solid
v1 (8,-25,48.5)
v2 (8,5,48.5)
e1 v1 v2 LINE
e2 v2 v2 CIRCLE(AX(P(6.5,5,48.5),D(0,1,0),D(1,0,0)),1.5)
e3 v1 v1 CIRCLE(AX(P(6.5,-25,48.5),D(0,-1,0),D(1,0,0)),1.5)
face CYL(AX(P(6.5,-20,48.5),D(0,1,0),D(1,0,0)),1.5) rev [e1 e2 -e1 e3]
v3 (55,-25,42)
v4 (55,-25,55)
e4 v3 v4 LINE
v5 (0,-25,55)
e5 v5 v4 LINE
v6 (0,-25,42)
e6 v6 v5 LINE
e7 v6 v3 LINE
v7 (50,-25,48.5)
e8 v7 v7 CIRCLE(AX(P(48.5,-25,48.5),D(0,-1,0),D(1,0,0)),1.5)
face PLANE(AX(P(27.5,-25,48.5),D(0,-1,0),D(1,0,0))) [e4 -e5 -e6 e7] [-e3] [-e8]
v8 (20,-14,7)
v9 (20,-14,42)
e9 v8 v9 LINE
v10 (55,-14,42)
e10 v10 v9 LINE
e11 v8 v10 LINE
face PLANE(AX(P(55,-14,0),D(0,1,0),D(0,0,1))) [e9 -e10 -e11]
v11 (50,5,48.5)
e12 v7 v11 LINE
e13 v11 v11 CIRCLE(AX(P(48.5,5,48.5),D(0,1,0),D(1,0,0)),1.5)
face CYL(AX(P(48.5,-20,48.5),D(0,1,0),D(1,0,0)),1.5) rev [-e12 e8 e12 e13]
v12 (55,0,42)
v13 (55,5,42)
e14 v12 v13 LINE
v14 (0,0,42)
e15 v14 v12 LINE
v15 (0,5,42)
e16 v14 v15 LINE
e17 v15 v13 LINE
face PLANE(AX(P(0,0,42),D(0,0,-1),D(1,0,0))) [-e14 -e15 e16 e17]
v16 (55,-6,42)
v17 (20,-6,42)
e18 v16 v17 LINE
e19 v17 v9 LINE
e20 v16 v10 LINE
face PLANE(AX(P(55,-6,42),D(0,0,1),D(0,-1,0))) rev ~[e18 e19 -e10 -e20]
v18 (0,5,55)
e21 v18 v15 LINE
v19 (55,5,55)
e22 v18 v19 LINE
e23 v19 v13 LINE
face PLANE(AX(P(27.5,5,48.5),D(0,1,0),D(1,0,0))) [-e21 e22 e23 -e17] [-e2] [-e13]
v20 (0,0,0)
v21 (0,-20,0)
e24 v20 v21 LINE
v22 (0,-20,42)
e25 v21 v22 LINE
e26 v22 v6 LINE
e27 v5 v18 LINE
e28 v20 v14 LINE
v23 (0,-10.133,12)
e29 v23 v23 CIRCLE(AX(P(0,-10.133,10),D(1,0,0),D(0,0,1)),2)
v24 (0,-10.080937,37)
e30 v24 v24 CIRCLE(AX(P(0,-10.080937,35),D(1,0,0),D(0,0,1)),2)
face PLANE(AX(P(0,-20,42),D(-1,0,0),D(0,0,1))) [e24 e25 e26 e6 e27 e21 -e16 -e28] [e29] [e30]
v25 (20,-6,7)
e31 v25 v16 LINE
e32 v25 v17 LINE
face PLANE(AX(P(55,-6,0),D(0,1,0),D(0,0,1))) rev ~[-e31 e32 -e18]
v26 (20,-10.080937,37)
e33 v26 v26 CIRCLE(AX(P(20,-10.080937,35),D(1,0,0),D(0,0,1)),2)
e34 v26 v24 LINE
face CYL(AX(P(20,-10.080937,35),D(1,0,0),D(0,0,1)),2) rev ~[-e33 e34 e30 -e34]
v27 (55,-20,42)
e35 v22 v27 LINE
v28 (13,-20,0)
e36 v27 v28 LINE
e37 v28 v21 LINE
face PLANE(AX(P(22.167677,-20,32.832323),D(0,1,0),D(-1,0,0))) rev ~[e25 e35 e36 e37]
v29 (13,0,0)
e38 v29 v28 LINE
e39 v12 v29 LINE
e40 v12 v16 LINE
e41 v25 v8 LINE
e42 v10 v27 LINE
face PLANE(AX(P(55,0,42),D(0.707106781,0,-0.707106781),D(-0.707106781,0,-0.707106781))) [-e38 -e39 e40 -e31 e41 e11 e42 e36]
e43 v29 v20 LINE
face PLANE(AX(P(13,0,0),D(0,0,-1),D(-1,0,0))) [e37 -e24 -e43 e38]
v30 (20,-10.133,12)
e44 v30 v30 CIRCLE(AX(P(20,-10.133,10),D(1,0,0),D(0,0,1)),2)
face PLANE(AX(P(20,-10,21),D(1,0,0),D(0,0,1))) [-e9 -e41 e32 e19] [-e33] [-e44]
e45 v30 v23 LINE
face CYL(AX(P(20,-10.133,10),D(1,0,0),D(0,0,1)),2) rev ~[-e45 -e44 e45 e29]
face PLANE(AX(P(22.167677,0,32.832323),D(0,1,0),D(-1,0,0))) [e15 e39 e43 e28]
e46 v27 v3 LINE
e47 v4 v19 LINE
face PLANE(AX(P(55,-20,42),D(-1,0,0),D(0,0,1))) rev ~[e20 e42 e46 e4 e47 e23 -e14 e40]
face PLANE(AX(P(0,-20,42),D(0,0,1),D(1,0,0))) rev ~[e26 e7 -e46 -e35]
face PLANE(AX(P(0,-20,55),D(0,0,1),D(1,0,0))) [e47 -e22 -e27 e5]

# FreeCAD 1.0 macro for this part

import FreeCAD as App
import Part
import Sketcher
from FreeCAD import Vector
Q = App.Units.Quantity

doc = App.newDocument("Part")
body = doc.addObject("PartDesign::Body", "Body")

# Sketch on XZ plane
sketch1 = body.newObject("Sketcher::SketchObject", "Sketch")
sketch1.AttachmentSupport = (doc.getObject("XZ_Plane"), [""])
sketch1.MapMode = "FlatFace"
sketch1.addGeometry([
    Part.LineSegment(Vector(0, 55, 0), Vector(0, 0, 0)),  # 0
    Part.LineSegment(Vector(0, 0, 0), Vector(13, 0, 0)),  # 1
    Part.LineSegment(Vector(13, 0, 0), Vector(55, 42, 0)),  # 2
    Part.LineSegment(Vector(55, 42, 0), Vector(55, 55, 0)),  # 3
    Part.LineSegment(Vector(55, 55, 0), Vector(0, 55, 0)),  # 4
], False)
sketch1.addConstraint([
    Sketcher.Constraint("Coincident", 0, 2, 1, 1),
    Sketcher.Constraint("Coincident", 1, 2, 2, 1),
    Sketcher.Constraint("Coincident", 2, 2, 3, 1),
    Sketcher.Constraint("Coincident", 3, 2, 4, 1),
    Sketcher.Constraint("Coincident", 4, 2, 0, 1),
    Sketcher.Constraint("Vertical", 0),
    Sketcher.Constraint("Horizontal", 1),
    Sketcher.Constraint("Vertical", 3),
    Sketcher.Constraint("Horizontal", 4),
    Sketcher.Constraint("Coincident", 0, 2, -1, 1),
    Sketcher.Constraint("Equal", 4, 0),
    Sketcher.Constraint("Equal", 1, 3),
    Sketcher.Constraint("DistanceX", 1, 1, 1, 2, Q("13 mm")),
    Sketcher.Constraint("DistanceX", 4, 2, 4, 1, Q("55 mm")),
])
pad1 = body.newObject("PartDesign::Pad", "Pad")
pad1.Profile = sketch1
pad1.Length = 20

# Sketch on YZ plane
sketch2 = body.newObject("Sketcher::SketchObject", "Sketch001")
sketch2.AttachmentSupport = (doc.getObject("YZ_Plane"), [""])
sketch2.MapMode = "FlatFace"
sketch2.AttachmentOffset = App.Placement(Vector(0, 0, 55), App.Rotation())
sketch2.addGeometry([
    Part.LineSegment(Vector(-14, 0, 0), Vector(-6, 0, 0)),
    Part.LineSegment(Vector(-6, 0, 0), Vector(-6, 42, 0)),
    Part.LineSegment(Vector(-6, 42, 0), Vector(-14, 42, 0)),
    Part.LineSegment(Vector(-14, 42, 0), Vector(-14, 0, 0)),
], False)
sketch2.addConstraint([
    Sketcher.Constraint("Coincident", 0, 2, 1, 1),
    Sketcher.Constraint("Coincident", 1, 2, 2, 1),
    Sketcher.Constraint("Coincident", 2, 2, 3, 1),
    Sketcher.Constraint("Coincident", 3, 2, 0, 1),
    Sketcher.Constraint("Horizontal", 0),
    Sketcher.Constraint("Vertical", 1),
    Sketcher.Constraint("Horizontal", 2),
    Sketcher.Constraint("Vertical", 3),
    Sketcher.Constraint("PointOnObject", 0, 2, -1),
    Sketcher.Constraint("DistanceX", 0, 1, 0, 2, Q("8 mm")),
    Sketcher.Constraint("DistanceY", 1, 1, 1, 2, Q("42 mm")),
    Sketcher.Constraint("DistanceX", 0, 2, -1, 1, Q("6 mm")),
])
pocket1 = body.newObject("PartDesign::Pocket", "Pocket")
pocket1.Profile = sketch2
pocket1.Length = 35

# Sketch on YZ plane
sketch3 = body.newObject("Sketcher::SketchObject", "Sketch002")
sketch3.AttachmentSupport = (doc.getObject("YZ_Plane"), [""])
sketch3.MapMode = "FlatFace"
sketch3.AttachmentOffset = App.Placement(Vector(0, 0, 20), App.Rotation())
sketch3.addGeometry([
    Part.Circle(Vector(-10.1, 10, 0), Vector(0, 0, 1), 2),
    Part.Circle(Vector(-10.1, 35, 0), Vector(0, 0, 1), 2),
], False)
sketch3.addConstraint([
    Sketcher.Constraint("Equal", 0, 1),
    Sketcher.Constraint("Diameter", 0, Q("4 mm")),
    Sketcher.Constraint("DistanceY", -1, 1, 0, 3, Q("10 mm")),
    Sketcher.Constraint("DistanceY", -1, 1, 1, 3, Q("35 mm")),
    Sketcher.Constraint("DistanceX", 0, 3, -1, 1, Q("10.133 mm")),
    Sketcher.Constraint("DistanceX", 1, 3, -1, 1, Q("10.080937 mm")),
])
pocket2 = body.newObject("PartDesign::Pocket", "Pocket001")
pocket2.Profile = sketch3
pocket2.Length = 25

# Sketch on XZ plane
sketch4 = body.newObject("Sketcher::SketchObject", "Sketch003")
sketch4.AttachmentSupport = (doc.getObject("XZ_Plane"), [""])
sketch4.MapMode = "FlatFace"
sketch4.AttachmentOffset = App.Placement(Vector(0, 0, 20), App.Rotation())
sketch4.addGeometry([
    Part.Circle(Vector(6.5, 48.5, 0), Vector(0, 0, 1), 1.5),
    Part.Circle(Vector(48.5, 48.5, 0), Vector(0, 0, 1), 1.5),
], False)
sketch4.addConstraint([
    Sketcher.Constraint("Equal", 0, 1),
    Sketcher.Constraint("Horizontal", 0, 3, 1, 3),
    Sketcher.Constraint("Diameter", 0, Q("3 mm")),
    Sketcher.Constraint("DistanceX", 0, 3, 1, 3, Q("42 mm")),
    Sketcher.Constraint("DistanceX", -1, 1, 0, 3, Q("6.5 mm")),
    Sketcher.Constraint("DistanceY", -1, 1, 0, 3, Q("48.5 mm")),
])
pocket3 = body.newObject("PartDesign::Pocket", "Pocket002")
pocket3.Profile = sketch4
pocket3.Length = 25

# Sketch on XZ plane
sketch5 = body.newObject("Sketcher::SketchObject", "Sketch004")
sketch5.AttachmentSupport = (doc.getObject("XZ_Plane"), [""])
sketch5.MapMode = "FlatFace"
sketch5.addGeometry([
    Part.LineSegment(Vector(0, 42, 0), Vector(0, 55, 0)),  # 0
    Part.LineSegment(Vector(0, 55, 0), Vector(55, 55, 0)),  # 1
    Part.LineSegment(Vector(55, 55, 0), Vector(55, 42, 0)),  # 2
    Part.LineSegment(Vector(55, 42, 0), Vector(0, 42, 0)),  # 3
    Part.Circle(Vector(6.5, 48.5, 0), Vector(0, 0, 1), 1.5),  # 4
    Part.Circle(Vector(48.5, 48.5, 0), Vector(0, 0, 1), 1.5),  # 5
], False)
sketch5.addConstraint([
    Sketcher.Constraint("Coincident", 0, 2, 1, 1),
    Sketcher.Constraint("Coincident", 1, 2, 2, 1),
    Sketcher.Constraint("Coincident", 2, 2, 3, 1),
    Sketcher.Constraint("Coincident", 3, 2, 0, 1),
    Sketcher.Constraint("Vertical", 0),
    Sketcher.Constraint("Horizontal", 1),
    Sketcher.Constraint("Vertical", 2),
    Sketcher.Constraint("Horizontal", 3),
    Sketcher.Constraint("Equal", 4, 5),
    Sketcher.Constraint("PointOnObject", 0, 2, -2),
    Sketcher.Constraint("Horizontal", 4, 3, 5, 3),
    Sketcher.Constraint("Diameter", 4, Q("3 mm")),
    Sketcher.Constraint("DistanceX", 1, 1, 1, 2, Q("55 mm")),
    Sketcher.Constraint("DistanceY", 0, 1, 0, 2, Q("13 mm")),
    Sketcher.Constraint("DistanceY", -1, 1, 0, 2, Q("55 mm")),
    Sketcher.Constraint("DistanceX", 4, 3, 5, 3, Q("42 mm")),
    Sketcher.Constraint("DistanceX", -1, 1, 4, 3, Q("6.5 mm")),
    Sketcher.Constraint("DistanceY", -1, 1, 4, 3, Q("48.5 mm")),
])
pad2 = body.newObject("PartDesign::Pad", "Pad001")
pad2.Profile = sketch5
pad2.Length = 5
pad2.Reversed = True

# Sketch on XZ plane
sketch6 = body.newObject("Sketcher::SketchObject", "Sketch005")
sketch6.AttachmentSupport = (doc.getObject("XZ_Plane"), [""])
sketch6.MapMode = "FlatFace"
sketch6.AttachmentOffset = App.Placement(Vector(0, 0, 20), App.Rotation())
sketch6.addGeometry([
    Part.LineSegment(Vector(0, 55, 0), Vector(0, 42, 0)),  # 0
    Part.LineSegment(Vector(0, 42, 0), Vector(55, 42, 0)),  # 1
    Part.LineSegment(Vector(55, 42, 0), Vector(55, 55, 0)),  # 2
    Part.LineSegment(Vector(55, 55, 0), Vector(0, 55, 0)),  # 3
    Part.Circle(Vector(6.5, 48.5, 0), Vector(0, 0, 1), 1.5),  # 4
    Part.Circle(Vector(48.5, 48.5, 0), Vector(0, 0, 1), 1.5),  # 5
], False)
sketch6.addConstraint([
    Sketcher.Constraint("Coincident", 0, 2, 1, 1),
    Sketcher.Constraint("Coincident", 1, 2, 2, 1),
    Sketcher.Constraint("Coincident", 2, 2, 3, 1),
    Sketcher.Constraint("Coincident", 3, 2, 0, 1),
    Sketcher.Constraint("Vertical", 0),
    Sketcher.Constraint("Horizontal", 1),
    Sketcher.Constraint("Vertical", 2),
    Sketcher.Constraint("Horizontal", 3),
    Sketcher.Constraint("Equal", 4, 5),
    Sketcher.Constraint("PointOnObject", 0, 2, -2),
    Sketcher.Constraint("Horizontal", 4, 3, 5, 3),
    Sketcher.Constraint("Diameter", 4, Q("3 mm")),
    Sketcher.Constraint("DistanceX", 1, 1, 1, 2, Q("55 mm")),
    Sketcher.Constraint("DistanceY", 0, 2, 0, 1, Q("13 mm")),
    Sketcher.Constraint("DistanceY", -1, 1, 0, 2, Q("42 mm")),
    Sketcher.Constraint("DistanceX", 4, 3, 5, 3, Q("42 mm")),
    Sketcher.Constraint("DistanceX", -1, 1, 4, 3, Q("6.5 mm")),
    Sketcher.Constraint("DistanceY", -1, 1, 4, 3, Q("48.5 mm")),
])
pad3 = body.newObject("PartDesign::Pad", "Pad002")
pad3.Profile = sketch6
pad3.Length = 5

doc.recompute()
